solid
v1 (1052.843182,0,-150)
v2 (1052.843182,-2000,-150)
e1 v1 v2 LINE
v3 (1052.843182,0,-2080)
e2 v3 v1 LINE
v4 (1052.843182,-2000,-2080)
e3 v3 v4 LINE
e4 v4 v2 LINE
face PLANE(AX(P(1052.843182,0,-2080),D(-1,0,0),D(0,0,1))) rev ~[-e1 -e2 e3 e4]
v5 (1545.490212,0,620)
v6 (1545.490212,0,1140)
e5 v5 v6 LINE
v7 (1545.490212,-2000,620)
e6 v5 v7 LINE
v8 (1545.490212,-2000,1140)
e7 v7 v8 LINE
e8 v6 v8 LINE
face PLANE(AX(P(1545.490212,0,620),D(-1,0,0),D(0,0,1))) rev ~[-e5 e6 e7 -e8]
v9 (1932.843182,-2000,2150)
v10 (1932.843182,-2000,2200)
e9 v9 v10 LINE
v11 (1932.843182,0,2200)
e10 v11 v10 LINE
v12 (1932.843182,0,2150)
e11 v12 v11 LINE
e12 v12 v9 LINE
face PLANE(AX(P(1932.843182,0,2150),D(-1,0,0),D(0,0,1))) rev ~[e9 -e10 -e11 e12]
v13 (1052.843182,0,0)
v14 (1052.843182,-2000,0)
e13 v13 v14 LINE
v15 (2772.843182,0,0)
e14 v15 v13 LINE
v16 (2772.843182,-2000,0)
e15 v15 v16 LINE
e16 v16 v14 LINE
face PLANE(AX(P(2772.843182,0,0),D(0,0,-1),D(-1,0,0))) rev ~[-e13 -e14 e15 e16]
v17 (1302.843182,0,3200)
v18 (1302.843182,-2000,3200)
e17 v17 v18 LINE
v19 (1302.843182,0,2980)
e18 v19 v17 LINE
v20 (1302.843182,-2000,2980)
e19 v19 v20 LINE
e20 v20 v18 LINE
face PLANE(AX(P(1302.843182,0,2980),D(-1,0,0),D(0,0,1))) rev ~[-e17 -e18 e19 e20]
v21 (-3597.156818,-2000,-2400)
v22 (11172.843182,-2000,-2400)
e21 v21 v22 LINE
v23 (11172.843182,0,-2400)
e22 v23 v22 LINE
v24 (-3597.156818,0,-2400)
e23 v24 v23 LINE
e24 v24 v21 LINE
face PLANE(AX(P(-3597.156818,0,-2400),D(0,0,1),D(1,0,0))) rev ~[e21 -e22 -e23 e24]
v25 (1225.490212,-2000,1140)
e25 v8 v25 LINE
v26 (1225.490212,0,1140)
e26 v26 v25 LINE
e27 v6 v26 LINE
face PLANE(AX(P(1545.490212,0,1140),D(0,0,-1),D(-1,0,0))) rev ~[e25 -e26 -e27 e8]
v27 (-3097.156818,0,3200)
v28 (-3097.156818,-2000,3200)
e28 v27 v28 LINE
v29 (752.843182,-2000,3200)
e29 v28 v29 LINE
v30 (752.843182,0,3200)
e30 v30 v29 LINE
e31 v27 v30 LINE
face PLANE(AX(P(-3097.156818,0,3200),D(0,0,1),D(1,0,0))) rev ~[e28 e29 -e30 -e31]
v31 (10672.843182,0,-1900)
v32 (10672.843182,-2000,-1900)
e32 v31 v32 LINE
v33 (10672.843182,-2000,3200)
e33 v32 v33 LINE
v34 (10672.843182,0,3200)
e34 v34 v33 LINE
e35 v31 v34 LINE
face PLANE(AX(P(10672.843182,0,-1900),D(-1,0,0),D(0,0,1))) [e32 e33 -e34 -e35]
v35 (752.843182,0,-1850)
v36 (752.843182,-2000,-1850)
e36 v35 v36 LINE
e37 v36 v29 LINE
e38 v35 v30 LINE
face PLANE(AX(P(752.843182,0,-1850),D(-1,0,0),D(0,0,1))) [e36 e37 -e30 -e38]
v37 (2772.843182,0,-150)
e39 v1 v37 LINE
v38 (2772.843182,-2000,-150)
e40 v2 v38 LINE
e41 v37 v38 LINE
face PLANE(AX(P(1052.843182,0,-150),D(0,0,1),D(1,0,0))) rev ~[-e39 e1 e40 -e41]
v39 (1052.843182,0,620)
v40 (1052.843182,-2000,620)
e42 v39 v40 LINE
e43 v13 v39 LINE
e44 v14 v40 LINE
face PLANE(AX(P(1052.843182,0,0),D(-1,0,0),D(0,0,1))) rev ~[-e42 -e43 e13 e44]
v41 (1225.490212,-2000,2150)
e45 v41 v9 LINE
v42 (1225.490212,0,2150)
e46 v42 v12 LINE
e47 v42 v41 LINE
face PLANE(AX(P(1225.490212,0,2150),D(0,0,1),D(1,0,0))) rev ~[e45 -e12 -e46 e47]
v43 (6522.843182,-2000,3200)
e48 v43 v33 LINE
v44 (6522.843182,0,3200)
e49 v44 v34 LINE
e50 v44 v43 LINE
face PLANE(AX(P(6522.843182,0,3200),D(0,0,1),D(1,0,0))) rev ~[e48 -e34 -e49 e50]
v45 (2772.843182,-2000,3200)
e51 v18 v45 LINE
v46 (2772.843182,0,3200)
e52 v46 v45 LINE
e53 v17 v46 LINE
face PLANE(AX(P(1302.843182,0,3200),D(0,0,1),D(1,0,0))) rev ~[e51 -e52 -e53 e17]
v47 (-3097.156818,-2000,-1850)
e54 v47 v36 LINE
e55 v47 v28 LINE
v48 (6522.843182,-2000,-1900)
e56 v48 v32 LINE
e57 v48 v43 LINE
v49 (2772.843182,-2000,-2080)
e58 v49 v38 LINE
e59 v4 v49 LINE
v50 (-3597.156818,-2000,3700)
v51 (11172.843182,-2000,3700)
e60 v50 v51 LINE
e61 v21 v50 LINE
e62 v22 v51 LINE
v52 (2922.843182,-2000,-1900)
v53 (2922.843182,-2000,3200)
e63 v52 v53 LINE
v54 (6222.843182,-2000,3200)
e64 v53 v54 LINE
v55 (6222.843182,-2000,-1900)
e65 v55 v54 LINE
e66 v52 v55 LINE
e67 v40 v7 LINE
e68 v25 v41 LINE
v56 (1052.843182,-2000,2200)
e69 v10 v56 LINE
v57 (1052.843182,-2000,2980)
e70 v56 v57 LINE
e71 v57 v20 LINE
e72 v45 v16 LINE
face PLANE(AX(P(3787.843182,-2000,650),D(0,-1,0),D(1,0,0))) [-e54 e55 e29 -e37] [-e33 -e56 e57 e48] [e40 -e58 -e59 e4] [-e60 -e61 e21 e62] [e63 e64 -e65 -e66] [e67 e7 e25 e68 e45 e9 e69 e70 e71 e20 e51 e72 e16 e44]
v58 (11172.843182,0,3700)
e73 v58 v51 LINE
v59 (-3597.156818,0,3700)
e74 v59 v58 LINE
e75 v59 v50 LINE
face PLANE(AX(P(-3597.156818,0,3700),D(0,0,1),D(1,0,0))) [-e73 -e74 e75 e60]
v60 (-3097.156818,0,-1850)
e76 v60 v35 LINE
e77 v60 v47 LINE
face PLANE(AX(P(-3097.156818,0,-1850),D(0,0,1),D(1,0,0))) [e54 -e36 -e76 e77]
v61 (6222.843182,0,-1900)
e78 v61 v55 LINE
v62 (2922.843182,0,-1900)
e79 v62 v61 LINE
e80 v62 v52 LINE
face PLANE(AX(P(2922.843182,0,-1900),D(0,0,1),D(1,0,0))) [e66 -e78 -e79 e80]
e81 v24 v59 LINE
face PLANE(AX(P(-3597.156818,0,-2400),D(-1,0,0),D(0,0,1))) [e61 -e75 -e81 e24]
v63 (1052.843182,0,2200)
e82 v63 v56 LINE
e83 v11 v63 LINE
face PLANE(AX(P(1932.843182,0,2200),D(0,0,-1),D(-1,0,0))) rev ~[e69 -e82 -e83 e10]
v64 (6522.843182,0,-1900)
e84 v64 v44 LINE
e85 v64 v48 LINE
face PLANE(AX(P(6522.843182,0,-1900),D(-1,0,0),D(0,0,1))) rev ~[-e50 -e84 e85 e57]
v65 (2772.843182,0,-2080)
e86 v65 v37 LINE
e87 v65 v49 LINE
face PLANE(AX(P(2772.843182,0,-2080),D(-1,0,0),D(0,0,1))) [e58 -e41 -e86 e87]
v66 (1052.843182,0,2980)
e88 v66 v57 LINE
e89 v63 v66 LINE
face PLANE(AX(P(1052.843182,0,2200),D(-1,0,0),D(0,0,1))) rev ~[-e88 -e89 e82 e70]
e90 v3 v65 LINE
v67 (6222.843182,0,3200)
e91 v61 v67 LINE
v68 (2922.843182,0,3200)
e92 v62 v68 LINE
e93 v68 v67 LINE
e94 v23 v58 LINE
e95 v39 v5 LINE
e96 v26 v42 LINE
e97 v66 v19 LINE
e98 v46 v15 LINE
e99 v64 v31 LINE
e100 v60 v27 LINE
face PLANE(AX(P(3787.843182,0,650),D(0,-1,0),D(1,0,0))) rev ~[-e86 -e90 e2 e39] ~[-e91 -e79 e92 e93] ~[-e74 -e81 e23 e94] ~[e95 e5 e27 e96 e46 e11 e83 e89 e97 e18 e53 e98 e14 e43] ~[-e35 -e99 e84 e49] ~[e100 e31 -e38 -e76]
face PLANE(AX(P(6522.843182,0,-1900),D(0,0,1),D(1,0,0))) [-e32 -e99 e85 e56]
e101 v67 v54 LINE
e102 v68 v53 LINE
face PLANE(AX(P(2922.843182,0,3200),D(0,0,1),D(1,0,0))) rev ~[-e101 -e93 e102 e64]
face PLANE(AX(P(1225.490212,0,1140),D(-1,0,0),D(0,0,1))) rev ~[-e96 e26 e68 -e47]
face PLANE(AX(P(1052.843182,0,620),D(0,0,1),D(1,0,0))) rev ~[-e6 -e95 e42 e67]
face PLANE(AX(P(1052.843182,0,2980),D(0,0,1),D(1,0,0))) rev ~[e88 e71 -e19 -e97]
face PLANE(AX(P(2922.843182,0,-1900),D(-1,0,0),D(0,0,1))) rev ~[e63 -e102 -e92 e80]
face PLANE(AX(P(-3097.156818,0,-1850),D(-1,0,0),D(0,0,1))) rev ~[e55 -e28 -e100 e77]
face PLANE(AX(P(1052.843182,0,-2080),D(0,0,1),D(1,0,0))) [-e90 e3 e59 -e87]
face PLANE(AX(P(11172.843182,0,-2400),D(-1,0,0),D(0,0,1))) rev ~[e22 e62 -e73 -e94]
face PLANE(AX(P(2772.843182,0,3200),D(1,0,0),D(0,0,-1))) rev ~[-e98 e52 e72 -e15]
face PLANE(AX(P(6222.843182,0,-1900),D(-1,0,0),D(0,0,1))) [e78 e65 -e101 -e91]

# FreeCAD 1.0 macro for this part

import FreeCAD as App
import Part
import Sketcher

doc = App.newDocument("Part")
body = doc.addObject("PartDesign::Body", "Body")

# Sketch on XZ plane
sketch1 = body.newObject("Sketcher::SketchObject", "Sketch")
sketch1.AttachmentSupport = (doc.getObject("XZ_Plane"), [""])
sketch1.MapMode = "FlatFace"
sketch1.addGeometry([
    Part.LineSegment(App.Vector(-3597, 3700, 0), App.Vector(-3597, -2400, 0)),  # 0
    Part.LineSegment(App.Vector(-3597, -2400, 0), App.Vector(11173, -2400, 0)),  # 1
    Part.LineSegment(App.Vector(11173, -2400, 0), App.Vector(11173, 3700, 0)),  # 2
    Part.LineSegment(App.Vector(11173, 3700, 0), App.Vector(-3597, 3700, 0)),  # 3
    Part.LineSegment(App.Vector(2773, -2080, 0), App.Vector(1053, -2080, 0)),  # 4
    Part.LineSegment(App.Vector(1053, -2080, 0), App.Vector(1053, -150, 0)),  # 5
    Part.LineSegment(App.Vector(1053, -150, 0), App.Vector(2773, -150, 0)),  # 6
    Part.LineSegment(App.Vector(2773, -150, 0), App.Vector(2773, -2080, 0)),  # 7
    Part.LineSegment(App.Vector(753, -1850, 0), App.Vector(-3097, -1850, 0)),  # 8
    Part.LineSegment(App.Vector(-3097, -1850, 0), App.Vector(-3097, 3200, 0)),  # 9
    Part.LineSegment(App.Vector(-3097, 3200, 0), App.Vector(753, 3200, 0)),  # 10
    Part.LineSegment(App.Vector(753, 3200, 0), App.Vector(753, -1850, 0)),  # 11
    Part.LineSegment(App.Vector(2773, 3200, 0), App.Vector(2773, 0, 0)),  # 12
    Part.LineSegment(App.Vector(2773, 0, 0), App.Vector(1053, 0, 0)),  # 13
    Part.LineSegment(App.Vector(1053, 0, 0), App.Vector(1053, 620, 0)),  # 14
    Part.LineSegment(App.Vector(1053, 620, 0), App.Vector(1545, 620, 0)),  # 15
    Part.LineSegment(App.Vector(1545, 620, 0), App.Vector(1545, 1140, 0)),  # 16
    Part.LineSegment(App.Vector(1545, 1140, 0), App.Vector(1225, 1140, 0)),  # 17
    Part.LineSegment(App.Vector(1225, 1140, 0), App.Vector(1225, 2150, 0)),  # 18
    Part.LineSegment(App.Vector(1225, 2150, 0), App.Vector(1933, 2150, 0)),  # 19
    Part.LineSegment(App.Vector(1933, 2150, 0), App.Vector(1933, 2200, 0)),  # 20
    Part.LineSegment(App.Vector(1933, 2200, 0), App.Vector(1053, 2200, 0)),  # 21
    Part.LineSegment(App.Vector(1053, 2200, 0), App.Vector(1053, 2980, 0)),  # 22
    Part.LineSegment(App.Vector(1053, 2980, 0), App.Vector(1303, 2980, 0)),  # 23
    Part.LineSegment(App.Vector(1303, 2980, 0), App.Vector(1303, 3200, 0)),  # 24
    Part.LineSegment(App.Vector(1303, 3200, 0), App.Vector(2773, 3200, 0)),  # 25
    Part.LineSegment(App.Vector(6223, -1900, 0), App.Vector(2923, -1900, 0)),  # 26
    Part.LineSegment(App.Vector(2923, -1900, 0), App.Vector(2923, 3200, 0)),  # 27
    Part.LineSegment(App.Vector(2923, 3200, 0), App.Vector(6223, 3200, 0)),  # 28
    Part.LineSegment(App.Vector(6223, 3200, 0), App.Vector(6223, -1900, 0)),  # 29
    Part.LineSegment(App.Vector(10673, -1900, 0), App.Vector(6523, -1900, 0)),  # 30
    Part.LineSegment(App.Vector(6523, -1900, 0), App.Vector(6523, 3200, 0)),  # 31
    Part.LineSegment(App.Vector(6523, 3200, 0), App.Vector(10673, 3200, 0)),  # 32
    Part.LineSegment(App.Vector(10673, 3200, 0), App.Vector(10673, -1900, 0)),  # 33
], False)
sketch1.addConstraint([
    Sketcher.Constraint("Coincident", 0, 2, 1, 1),
    Sketcher.Constraint("Coincident", 1, 2, 2, 1),
    Sketcher.Constraint("Coincident", 2, 2, 3, 1),
    Sketcher.Constraint("Coincident", 3, 2, 0, 1),
    Sketcher.Constraint("Coincident", 4, 2, 5, 1),
    Sketcher.Constraint("Coincident", 5, 2, 6, 1),
    Sketcher.Constraint("Coincident", 6, 2, 7, 1),
    Sketcher.Constraint("Coincident", 7, 2, 4, 1),
    Sketcher.Constraint("Coincident", 8, 2, 9, 1),
    Sketcher.Constraint("Coincident", 9, 2, 10, 1),
    Sketcher.Constraint("Coincident", 10, 2, 11, 1),
    Sketcher.Constraint("Coincident", 11, 2, 8, 1),
    Sketcher.Constraint("Coincident", 12, 2, 13, 1),
    Sketcher.Constraint("Coincident", 13, 2, 14, 1),
    Sketcher.Constraint("Coincident", 14, 2, 15, 1),
    Sketcher.Constraint("Coincident", 15, 2, 16, 1),
    Sketcher.Constraint("Coincident", 16, 2, 17, 1),
    Sketcher.Constraint("Coincident", 17, 2, 18, 1),
    Sketcher.Constraint("Coincident", 18, 2, 19, 1),
    Sketcher.Constraint("Coincident", 19, 2, 20, 1),
    Sketcher.Constraint("Coincident", 20, 2, 21, 1),
    Sketcher.Constraint("Coincident", 21, 2, 22, 1),
    Sketcher.Constraint("Coincident", 22, 2, 23, 1),
    Sketcher.Constraint("Coincident", 23, 2, 24, 1),
    Sketcher.Constraint("Coincident", 24, 2, 25, 1),
    Sketcher.Constraint("Coincident", 25, 2, 12, 1),
    Sketcher.Constraint("Coincident", 26, 2, 27, 1),
    Sketcher.Constraint("Coincident", 27, 2, 28, 1),
    Sketcher.Constraint("Coincident", 28, 2, 29, 1),
    Sketcher.Constraint("Coincident", 29, 2, 26, 1),
    Sketcher.Constraint("Coincident", 30, 2, 31, 1),
    Sketcher.Constraint("Coincident", 31, 2, 32, 1),
    Sketcher.Constraint("Coincident", 32, 2, 33, 1),
    Sketcher.Constraint("Coincident", 33, 2, 30, 1),
    Sketcher.Constraint("Vertical", 0),
    Sketcher.Constraint("Horizontal", 1),
    Sketcher.Constraint("Vertical", 2),
    Sketcher.Constraint("Horizontal", 3),
    Sketcher.Constraint("Horizontal", 4),
    Sketcher.Constraint("Vertical", 5),
    Sketcher.Constraint("Horizontal", 6),
    Sketcher.Constraint("Vertical", 7),
    Sketcher.Constraint("Horizontal", 8),
    Sketcher.Constraint("Vertical", 9),
    Sketcher.Constraint("Horizontal", 10),
    Sketcher.Constraint("Vertical", 11),
    Sketcher.Constraint("Vertical", 12),
    Sketcher.Constraint("Horizontal", 13),
    Sketcher.Constraint("Vertical", 14),
    Sketcher.Constraint("Horizontal", 15),
    Sketcher.Constraint("Vertical", 16),
    Sketcher.Constraint("Horizontal", 17),
    Sketcher.Constraint("Vertical", 18),
    Sketcher.Constraint("Horizontal", 19),
    Sketcher.Constraint("Vertical", 20),
    Sketcher.Constraint("Horizontal", 21),
    Sketcher.Constraint("Vertical", 22),
    Sketcher.Constraint("Horizontal", 23),
    Sketcher.Constraint("Vertical", 24),
    Sketcher.Constraint("Horizontal", 25),
    Sketcher.Constraint("Horizontal", 26),
    Sketcher.Constraint("Vertical", 27),
    Sketcher.Constraint("Horizontal", 28),
    Sketcher.Constraint("Vertical", 29),
    Sketcher.Constraint("Horizontal", 30),
    Sketcher.Constraint("Vertical", 31),
    Sketcher.Constraint("Horizontal", 32),
    Sketcher.Constraint("Vertical", 33),
    Sketcher.Constraint("PointOnObject", 12, 2, -1),
    Sketcher.Constraint("Horizontal", 10, 2, 24, 2),
    Sketcher.Constraint("Horizontal", 25, 2, 27, 2),
    Sketcher.Constraint("Horizontal", 29, 2, 30, 2),
    Sketcher.Constraint("Horizontal", 28, 2, 31, 2),
    Sketcher.Constraint("Vertical", 7, 2, 12, 2),
    Sketcher.Constraint("Vertical", 5, 2, 13, 2),
    Sketcher.Constraint("Vertical", 14, 2, 21, 2),
    Sketcher.Constraint("DistanceX", 1, 1, 1, 2, 14770.0),
    Sketcher.Constraint("DistanceX", 4, 2, 4, 1, 1720.0),
    Sketcher.Constraint("DistanceX", 8, 2, 8, 1, 3850.0),
    Sketcher.Constraint("DistanceX", 17, 2, 17, 1, 320.0),
    Sketcher.Constraint("DistanceX", 21, 2, 21, 1, 880.0),
    Sketcher.Constraint("DistanceX", 23, 1, 23, 2, 250.0),
    Sketcher.Constraint("DistanceX", 26, 2, 26, 1, 3300.0),
    Sketcher.Constraint("DistanceX", 30, 2, 30, 1, 4150.0),
    Sketcher.Constraint("DistanceY", 0, 2, 0, 1, 6100.0),
    Sketcher.Constraint("DistanceY", 5, 1, 5, 2, 1930.0),
    Sketcher.Constraint("DistanceY", 9, 1, 9, 2, 5050.0),
    Sketcher.Constraint("DistanceY", 12, 2, 12, 1, 3200.0),
    Sketcher.Constraint("DistanceY", 14, 1, 14, 2, 620.0),
    Sketcher.Constraint("DistanceY", 16, 1, 16, 2, 520.0),
    Sketcher.Constraint("DistanceY", 18, 1, 18, 2, 1010.0),
    Sketcher.Constraint("DistanceY", 20, 1, 20, 2, 50.0),
    Sketcher.Constraint("DistanceY", 22, 1, 22, 2, 780.0),
    Sketcher.Constraint("DistanceY", 27, 1, 27, 2, 5100.0),
    Sketcher.Constraint("DistanceY", 0, 2, -1, 1, 2400.0),
    Sketcher.Constraint("DistanceY", 4, 2, -1, 1, 2080.0),
    Sketcher.Constraint("DistanceX", 0, 2, 4, 2, 4650.0),
    Sketcher.Constraint("DistanceX", 0, 2, 8, 2, 500.0),
    Sketcher.Constraint("DistanceX", 7, 2, 26, 2, 150.0),
    Sketcher.Constraint("DistanceX", 29, 2, 30, 2, 300.0),
    Sketcher.Constraint("DistanceX", 15, 1, 15, 2, 492.64703),
    Sketcher.Constraint("DistanceX", -1, 1, 4, 2, 1052.843182),
])
pad1 = body.newObject("PartDesign::Pad", "Pad")
pad1.Profile = sketch1
pad1.Length = 2000

doc.recompute()
